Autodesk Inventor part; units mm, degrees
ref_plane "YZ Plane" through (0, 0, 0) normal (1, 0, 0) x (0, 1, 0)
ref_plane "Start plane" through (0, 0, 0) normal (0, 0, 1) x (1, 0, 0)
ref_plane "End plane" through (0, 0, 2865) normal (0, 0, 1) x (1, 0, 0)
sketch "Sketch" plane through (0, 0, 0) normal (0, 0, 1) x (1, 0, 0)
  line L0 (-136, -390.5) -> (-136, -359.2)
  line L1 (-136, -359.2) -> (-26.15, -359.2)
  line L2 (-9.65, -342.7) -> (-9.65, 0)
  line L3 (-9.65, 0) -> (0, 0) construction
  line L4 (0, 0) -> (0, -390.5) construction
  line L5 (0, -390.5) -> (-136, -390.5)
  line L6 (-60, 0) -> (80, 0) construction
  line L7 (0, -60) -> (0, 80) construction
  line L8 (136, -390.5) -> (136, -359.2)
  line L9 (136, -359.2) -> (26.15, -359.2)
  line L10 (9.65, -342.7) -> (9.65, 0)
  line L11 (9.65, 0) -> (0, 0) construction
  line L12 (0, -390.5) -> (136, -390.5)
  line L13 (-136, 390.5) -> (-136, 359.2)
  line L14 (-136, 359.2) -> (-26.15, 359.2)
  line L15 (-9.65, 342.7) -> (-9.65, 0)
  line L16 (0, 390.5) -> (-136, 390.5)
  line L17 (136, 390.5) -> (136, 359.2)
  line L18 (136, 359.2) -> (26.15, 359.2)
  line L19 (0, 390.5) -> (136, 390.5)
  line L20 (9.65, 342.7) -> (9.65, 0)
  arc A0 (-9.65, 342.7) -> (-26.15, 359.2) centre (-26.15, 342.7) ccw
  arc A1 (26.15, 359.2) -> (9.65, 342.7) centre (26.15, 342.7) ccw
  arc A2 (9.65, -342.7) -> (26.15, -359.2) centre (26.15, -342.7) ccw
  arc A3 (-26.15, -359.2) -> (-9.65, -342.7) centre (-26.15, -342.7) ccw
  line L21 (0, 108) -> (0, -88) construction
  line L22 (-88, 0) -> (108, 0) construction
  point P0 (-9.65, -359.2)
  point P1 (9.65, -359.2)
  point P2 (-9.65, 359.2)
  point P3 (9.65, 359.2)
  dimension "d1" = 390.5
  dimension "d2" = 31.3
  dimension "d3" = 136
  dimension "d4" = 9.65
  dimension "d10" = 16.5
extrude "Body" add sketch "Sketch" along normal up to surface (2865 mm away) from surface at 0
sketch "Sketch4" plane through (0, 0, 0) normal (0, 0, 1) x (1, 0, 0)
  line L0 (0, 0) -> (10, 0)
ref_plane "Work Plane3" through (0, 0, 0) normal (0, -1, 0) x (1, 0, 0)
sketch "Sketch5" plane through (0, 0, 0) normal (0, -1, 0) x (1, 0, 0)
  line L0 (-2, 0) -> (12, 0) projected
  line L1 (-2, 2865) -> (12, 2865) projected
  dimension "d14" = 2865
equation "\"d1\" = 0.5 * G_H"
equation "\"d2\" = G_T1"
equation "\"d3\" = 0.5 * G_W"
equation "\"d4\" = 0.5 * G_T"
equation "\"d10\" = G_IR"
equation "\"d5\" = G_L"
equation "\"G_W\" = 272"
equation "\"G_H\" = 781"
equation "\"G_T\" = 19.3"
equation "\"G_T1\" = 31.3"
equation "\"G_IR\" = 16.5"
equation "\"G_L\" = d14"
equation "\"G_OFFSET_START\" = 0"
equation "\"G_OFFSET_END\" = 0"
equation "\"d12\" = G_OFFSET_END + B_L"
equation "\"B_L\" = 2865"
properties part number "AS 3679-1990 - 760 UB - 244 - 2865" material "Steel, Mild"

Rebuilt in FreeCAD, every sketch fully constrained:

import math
import FreeCAD as App
import Part
import Sketcher
from FreeCAD import Vector

doc = App.newDocument("Part")
body = doc.addObject("PartDesign::Body", "Body")

# Sketch on XY plane
sketch1 = body.newObject("Sketcher::SketchObject", "Sketch")
sketch1.AttachmentSupport = (doc.getObject("XY_Plane"), [""])
sketch1.MapMode = "FlatFace"
sketch1.addGeometry(Part.LineSegment(Vector(-136, -359, 0), Vector(-136, -390, 0)), False)
sketch1.addGeometry(Part.LineSegment(Vector(-136, -390, 0), Vector(136, -390, 0)), False)
sketch1.addGeometry(Part.LineSegment(Vector(136, -390, 0), Vector(136, -359, 0)), False)
sketch1.addGeometry(Part.LineSegment(Vector(136, -359, 0), Vector(26, -359, 0)), False)
sketch1.addGeometry(Part.ArcOfCircle(Part.Circle(Vector(26, -343, 0), Vector(0, 0, 1), 16), math.radians(180), math.radians(270)), False)
sketch1.addGeometry(Part.LineSegment(Vector(10, -343, 0), Vector(10, 343, 0)), False)
sketch1.addGeometry(Part.ArcOfCircle(Part.Circle(Vector(26, 343, 0), Vector(0, 0, 1), 16), math.radians(90), math.radians(180)), False)
sketch1.addGeometry(Part.LineSegment(Vector(26, 359, 0), Vector(136, 359, 0)), False)
sketch1.addGeometry(Part.LineSegment(Vector(136, 359, 0), Vector(136, 390, 0)), False)
sketch1.addGeometry(Part.LineSegment(Vector(136, 390, 0), Vector(-136, 390, 0)), False)
sketch1.addGeometry(Part.LineSegment(Vector(-136, 390, 0), Vector(-136, 359, 0)), False)
sketch1.addGeometry(Part.LineSegment(Vector(-136, 359, 0), Vector(-26, 359, 0)), False)
sketch1.addGeometry(Part.ArcOfCircle(Part.Circle(Vector(-26, 343, 0), Vector(0, 0, 1), 16), math.radians(0), math.radians(90)), False)
sketch1.addGeometry(Part.LineSegment(Vector(-10, 343, 0), Vector(-10, -343, 0)), False)
sketch1.addGeometry(Part.ArcOfCircle(Part.Circle(Vector(-26, -343, 0), Vector(0, 0, 1), 16), math.radians(-90), math.radians(0)), False)
sketch1.addGeometry(Part.LineSegment(Vector(-26, -359, 0), Vector(-136, -359, 0)), False)
sketch1.addConstraint(Sketcher.Constraint("Coincident", 0, 2, 1, 1))
sketch1.addConstraint(Sketcher.Constraint("Coincident", 1, 2, 2, 1))
sketch1.addConstraint(Sketcher.Constraint("Coincident", 2, 2, 3, 1))
sketch1.addConstraint(Sketcher.Constraint("Tangent", 3, 2, 4, 2))
sketch1.addConstraint(Sketcher.Constraint("Tangent", 4, 1, 5, 1))
sketch1.addConstraint(Sketcher.Constraint("Tangent", 5, 2, 6, 2))
sketch1.addConstraint(Sketcher.Constraint("Tangent", 6, 1, 7, 1))
sketch1.addConstraint(Sketcher.Constraint("Coincident", 7, 2, 8, 1))
sketch1.addConstraint(Sketcher.Constraint("Coincident", 8, 2, 9, 1))
sketch1.addConstraint(Sketcher.Constraint("Coincident", 9, 2, 10, 1))
sketch1.addConstraint(Sketcher.Constraint("Coincident", 10, 2, 11, 1))
sketch1.addConstraint(Sketcher.Constraint("Tangent", 11, 2, 12, 2))
sketch1.addConstraint(Sketcher.Constraint("Tangent", 12, 1, 13, 1))
sketch1.addConstraint(Sketcher.Constraint("Tangent", 13, 2, 14, 2))
sketch1.addConstraint(Sketcher.Constraint("Tangent", 14, 1, 15, 1))
sketch1.addConstraint(Sketcher.Constraint("Coincident", 15, 2, 0, 1))
sketch1.addConstraint(Sketcher.Constraint("Vertical", 0))
sketch1.addConstraint(Sketcher.Constraint("Horizontal", 1))
sketch1.addConstraint(Sketcher.Constraint("Vertical", 2))
sketch1.addConstraint(Sketcher.Constraint("Horizontal", 3))
sketch1.addConstraint(Sketcher.Constraint("Vertical", 5))
sketch1.addConstraint(Sketcher.Constraint("Horizontal", 7))
sketch1.addConstraint(Sketcher.Constraint("Vertical", 8))
sketch1.addConstraint(Sketcher.Constraint("Horizontal", 9))
sketch1.addConstraint(Sketcher.Constraint("Vertical", 10))
sketch1.addConstraint(Sketcher.Constraint("Horizontal", 11))
sketch1.addConstraint(Sketcher.Constraint("Vertical", 13))
sketch1.addConstraint(Sketcher.Constraint("Horizontal", 15))
sketch1.addConstraint(Sketcher.Constraint("Equal", 4, 6))
sketch1.addConstraint(Sketcher.Constraint("Equal", 6, 12))
sketch1.addConstraint(Sketcher.Constraint("Equal", 12, 14))
sketch1.addConstraint(Sketcher.Constraint("Symmetric", 4, 3, 12, 3, -1, 1))
sketch1.addConstraint(Sketcher.Constraint("Symmetric", 0, 2, 8, 2, -1, 1))
sketch1.addConstraint(Sketcher.Constraint("Symmetric", 7, 2, 10, 2, -2))
sketch1.addConstraint(Sketcher.Constraint("Symmetric", 2, 2, 15, 2, -2))
sketch1.addConstraint(Sketcher.Constraint("Radius", 4, 16.5))
sketch1.addConstraint(Sketcher.Constraint("DistanceY", 0, 2, 0, 1, 31.3))
sketch1.addConstraint(Sketcher.Constraint("DistanceX", 0, 2, -1, 1, 136.0))
sketch1.addConstraint(Sketcher.Constraint("DistanceY", 0, 2, -1, 1, 390.5))
sketch1.addConstraint(Sketcher.Constraint("DistanceX", -1, 1, 4, 1, 9.65))
pad1 = body.newObject("PartDesign::Pad", "Pad")
pad1.Profile = sketch1
pad1.Length = 2865

doc.recompute()
